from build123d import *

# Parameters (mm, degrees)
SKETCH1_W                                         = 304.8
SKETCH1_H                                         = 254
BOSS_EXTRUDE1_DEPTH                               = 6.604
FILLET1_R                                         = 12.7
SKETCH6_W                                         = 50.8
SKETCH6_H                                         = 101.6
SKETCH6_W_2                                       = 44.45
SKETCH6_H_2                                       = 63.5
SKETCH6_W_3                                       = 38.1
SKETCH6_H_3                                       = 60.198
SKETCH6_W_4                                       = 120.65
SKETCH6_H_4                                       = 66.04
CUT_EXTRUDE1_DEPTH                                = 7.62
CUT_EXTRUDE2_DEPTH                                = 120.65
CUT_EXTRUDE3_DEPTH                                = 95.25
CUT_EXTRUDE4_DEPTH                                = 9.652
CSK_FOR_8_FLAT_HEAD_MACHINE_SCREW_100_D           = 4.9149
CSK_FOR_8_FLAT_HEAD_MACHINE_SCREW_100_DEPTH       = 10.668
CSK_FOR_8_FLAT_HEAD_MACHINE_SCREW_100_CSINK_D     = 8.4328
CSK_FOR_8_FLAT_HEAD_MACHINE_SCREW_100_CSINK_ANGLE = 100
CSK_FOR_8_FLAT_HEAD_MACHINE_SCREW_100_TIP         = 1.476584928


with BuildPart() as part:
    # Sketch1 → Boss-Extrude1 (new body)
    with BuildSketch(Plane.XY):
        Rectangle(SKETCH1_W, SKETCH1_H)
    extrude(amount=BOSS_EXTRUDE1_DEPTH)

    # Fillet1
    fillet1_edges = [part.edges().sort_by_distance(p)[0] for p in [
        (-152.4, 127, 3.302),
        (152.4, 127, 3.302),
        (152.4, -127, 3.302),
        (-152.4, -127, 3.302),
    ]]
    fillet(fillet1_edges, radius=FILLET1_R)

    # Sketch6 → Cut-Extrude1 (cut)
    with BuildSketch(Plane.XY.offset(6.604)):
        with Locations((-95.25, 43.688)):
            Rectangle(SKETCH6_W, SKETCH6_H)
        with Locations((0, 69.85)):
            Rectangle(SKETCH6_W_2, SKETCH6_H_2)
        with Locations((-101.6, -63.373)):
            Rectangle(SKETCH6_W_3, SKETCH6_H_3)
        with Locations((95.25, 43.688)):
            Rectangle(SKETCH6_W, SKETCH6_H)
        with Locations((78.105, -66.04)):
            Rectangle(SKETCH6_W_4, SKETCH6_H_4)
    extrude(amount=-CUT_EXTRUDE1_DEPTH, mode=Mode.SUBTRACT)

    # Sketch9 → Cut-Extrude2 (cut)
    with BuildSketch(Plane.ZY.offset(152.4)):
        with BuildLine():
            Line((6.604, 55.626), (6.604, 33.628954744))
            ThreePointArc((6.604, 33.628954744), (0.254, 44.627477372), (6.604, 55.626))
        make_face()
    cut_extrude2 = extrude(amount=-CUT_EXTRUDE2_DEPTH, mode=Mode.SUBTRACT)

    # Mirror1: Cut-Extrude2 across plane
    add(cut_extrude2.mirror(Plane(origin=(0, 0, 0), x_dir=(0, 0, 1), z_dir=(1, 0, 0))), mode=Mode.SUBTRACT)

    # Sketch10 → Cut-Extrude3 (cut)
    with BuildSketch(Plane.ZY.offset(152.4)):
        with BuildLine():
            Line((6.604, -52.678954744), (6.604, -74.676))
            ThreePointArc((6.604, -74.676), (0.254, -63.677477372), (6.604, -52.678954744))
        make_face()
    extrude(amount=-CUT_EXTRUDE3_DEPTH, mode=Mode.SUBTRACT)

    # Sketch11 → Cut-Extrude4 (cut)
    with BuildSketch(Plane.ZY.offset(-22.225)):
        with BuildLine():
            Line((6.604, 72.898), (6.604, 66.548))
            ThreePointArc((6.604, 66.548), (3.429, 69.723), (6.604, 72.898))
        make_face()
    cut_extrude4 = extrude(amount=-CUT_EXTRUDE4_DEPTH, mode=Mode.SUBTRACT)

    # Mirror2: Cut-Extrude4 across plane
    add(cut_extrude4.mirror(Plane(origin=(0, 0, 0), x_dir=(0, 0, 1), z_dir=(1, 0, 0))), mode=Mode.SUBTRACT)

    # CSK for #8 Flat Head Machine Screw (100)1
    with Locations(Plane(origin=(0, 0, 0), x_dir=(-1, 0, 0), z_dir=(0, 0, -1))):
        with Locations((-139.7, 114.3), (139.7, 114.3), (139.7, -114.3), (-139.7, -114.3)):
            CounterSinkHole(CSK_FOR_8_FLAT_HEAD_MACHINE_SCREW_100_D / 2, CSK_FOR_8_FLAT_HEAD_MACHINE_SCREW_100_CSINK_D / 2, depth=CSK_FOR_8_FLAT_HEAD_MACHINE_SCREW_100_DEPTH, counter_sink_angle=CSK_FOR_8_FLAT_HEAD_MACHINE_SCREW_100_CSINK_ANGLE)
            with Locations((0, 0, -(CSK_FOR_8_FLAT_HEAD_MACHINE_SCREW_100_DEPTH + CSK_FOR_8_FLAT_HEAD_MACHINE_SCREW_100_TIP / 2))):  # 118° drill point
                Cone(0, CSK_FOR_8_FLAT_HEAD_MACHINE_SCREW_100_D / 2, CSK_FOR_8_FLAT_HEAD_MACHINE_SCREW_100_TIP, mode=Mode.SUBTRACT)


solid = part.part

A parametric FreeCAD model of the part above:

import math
import FreeCAD as App
import Part
import Sketcher
Q = App.Units.Quantity


def edges_at(feature, points):
    """Names of the edges that pass closest to the given points."""
    edges = feature.Shape.Edges
    near = lambda p: min(range(len(edges)), key=lambda i: edges[i].distToShape(Part.Vertex(*p))[0])
    return sorted({f"Edge{near(p) + 1}" for p in points})

doc = App.newDocument("Part")
body = doc.addObject("PartDesign::Body", "Body")

sketch1 = body.newObject("Sketcher::SketchObject", "Sketch")
sketch1.AttachmentSupport = (doc.getObject("XY_Plane"), [""])
sketch1.MapMode = "FlatFace"
sketch1.addGeometry(Part.LineSegment(App.Vector(-152.4, 127, 0), App.Vector(-152.4, -127, 0)), False)
sketch1.addGeometry(Part.LineSegment(App.Vector(-152.4, -127, 0), App.Vector(152.4, -127, 0)), False)
sketch1.addGeometry(Part.LineSegment(App.Vector(152.4, -127, 0), App.Vector(152.4, 127, 0)), False)
sketch1.addGeometry(Part.LineSegment(App.Vector(152.4, 127, 0), App.Vector(-152.4, 127, 0)), False)
sketch1.addConstraint(Sketcher.Constraint("Coincident", 0, 2, 1, 1))
sketch1.addConstraint(Sketcher.Constraint("Coincident", 1, 2, 2, 1))
sketch1.addConstraint(Sketcher.Constraint("Coincident", 2, 2, 3, 1))
sketch1.addConstraint(Sketcher.Constraint("Coincident", 3, 2, 0, 1))
sketch1.addConstraint(Sketcher.Constraint("Vertical", 0))
sketch1.addConstraint(Sketcher.Constraint("Horizontal", 1))
sketch1.addConstraint(Sketcher.Constraint("Vertical", 2))
sketch1.addConstraint(Sketcher.Constraint("Horizontal", 3))
sketch1.addConstraint(Sketcher.Constraint("Symmetric", 0, 2, 2, 2, -1, 1))
sketch1.addConstraint(Sketcher.Constraint("DistanceX", 1, 1, 1, 2, Q("12 in")))
sketch1.addConstraint(Sketcher.Constraint("DistanceY", 0, 2, 0, 1, Q("10 in")))
pad1 = body.newObject("PartDesign::Pad", "Pad")
pad1.Profile = sketch1
pad1.Length = Q("0.26 in")
doc.recompute()

fillet = body.newObject("PartDesign::Fillet", "Fillet")
fillet.Base = (pad1, edges_at(pad1, [
    (-152.4, 127, 3.302),
    (152.4, 127, 3.302),
    (152.4, -127, 3.302),
    (-152.4, -127, 3.302),
]))
fillet.Radius = Q("0.5 in")

sketch2 = body.newObject("Sketcher::SketchObject", "Sketch001")
sketch2.AttachmentSupport = (doc.getObject("XY_Plane"), [""])
sketch2.MapMode = "FlatFace"
sketch2.AttachmentOffset = App.Placement(App.Vector(0, 0, 0.26 * 25.4), App.Rotation())
sketch2.addGeometry(Part.LineSegment(App.Vector(-120.65, 94.488, 0), App.Vector(-120.65, -7.112, 0)), False)
sketch2.addGeometry(Part.LineSegment(App.Vector(-120.65, -7.112, 0), App.Vector(-69.85, -7.112, 0)), False)
sketch2.addGeometry(Part.LineSegment(App.Vector(-69.85, -7.112, 0), App.Vector(-69.85, 94.488, 0)), False)
sketch2.addGeometry(Part.LineSegment(App.Vector(-69.85, 94.488, 0), App.Vector(-120.65, 94.488, 0)), False)
sketch2.addGeometry(Part.LineSegment(App.Vector(-22.225, 101.6, 0), App.Vector(-22.225, 38.1, 0)), False)
sketch2.addGeometry(Part.LineSegment(App.Vector(-22.225, 38.1, 0), App.Vector(22.225, 38.1, 0)), False)
sketch2.addGeometry(Part.LineSegment(App.Vector(22.225, 38.1, 0), App.Vector(22.225, 101.6, 0)), False)
sketch2.addGeometry(Part.LineSegment(App.Vector(22.225, 101.6, 0), App.Vector(-22.225, 101.6, 0)), False)
sketch2.addGeometry(Part.LineSegment(App.Vector(-120.65, -33.274, 0), App.Vector(-120.65, -93.472, 0)), False)
sketch2.addGeometry(Part.LineSegment(App.Vector(-120.65, -93.472, 0), App.Vector(-82.55, -93.472, 0)), False)
sketch2.addGeometry(Part.LineSegment(App.Vector(-82.55, -93.472, 0), App.Vector(-82.55, -33.274, 0)), False)
sketch2.addGeometry(Part.LineSegment(App.Vector(-82.55, -33.274, 0), App.Vector(-120.65, -33.274, 0)), False)
sketch2.addGeometry(Part.LineSegment(App.Vector(69.85, 94.488, 0), App.Vector(69.85, -7.112, 0)), False)
sketch2.addGeometry(Part.LineSegment(App.Vector(69.85, -7.112, 0), App.Vector(120.65, -7.112, 0)), False)
sketch2.addGeometry(Part.LineSegment(App.Vector(120.65, -7.112, 0), App.Vector(120.65, 94.488, 0)), False)
sketch2.addGeometry(Part.LineSegment(App.Vector(120.65, 94.488, 0), App.Vector(69.85, 94.488, 0)), False)
sketch2.addGeometry(Part.LineSegment(App.Vector(17.78, -33.02, 0), App.Vector(17.78, -99.06, 0)), False)
sketch2.addGeometry(Part.LineSegment(App.Vector(17.78, -99.06, 0), App.Vector(138.43, -99.06, 0)), False)
sketch2.addGeometry(Part.LineSegment(App.Vector(138.43, -99.06, 0), App.Vector(138.43, -33.02, 0)), False)
sketch2.addGeometry(Part.LineSegment(App.Vector(138.43, -33.02, 0), App.Vector(17.78, -33.02, 0)), False)
sketch2.addConstraint(Sketcher.Constraint("Coincident", 0, 2, 1, 1))
sketch2.addConstraint(Sketcher.Constraint("Coincident", 1, 2, 2, 1))
sketch2.addConstraint(Sketcher.Constraint("Coincident", 2, 2, 3, 1))
sketch2.addConstraint(Sketcher.Constraint("Coincident", 3, 2, 0, 1))
sketch2.addConstraint(Sketcher.Constraint("Coincident", 4, 2, 5, 1))
sketch2.addConstraint(Sketcher.Constraint("Coincident", 5, 2, 6, 1))
sketch2.addConstraint(Sketcher.Constraint("Coincident", 6, 2, 7, 1))
sketch2.addConstraint(Sketcher.Constraint("Coincident", 7, 2, 4, 1))
sketch2.addConstraint(Sketcher.Constraint("Coincident", 8, 2, 9, 1))
sketch2.addConstraint(Sketcher.Constraint("Coincident", 9, 2, 10, 1))
sketch2.addConstraint(Sketcher.Constraint("Coincident", 10, 2, 11, 1))
sketch2.addConstraint(Sketcher.Constraint("Coincident", 11, 2, 8, 1))
sketch2.addConstraint(Sketcher.Constraint("Coincident", 12, 2, 13, 1))
sketch2.addConstraint(Sketcher.Constraint("Coincident", 13, 2, 14, 1))
sketch2.addConstraint(Sketcher.Constraint("Coincident", 14, 2, 15, 1))
sketch2.addConstraint(Sketcher.Constraint("Coincident", 15, 2, 12, 1))
sketch2.addConstraint(Sketcher.Constraint("Coincident", 16, 2, 17, 1))
sketch2.addConstraint(Sketcher.Constraint("Coincident", 17, 2, 18, 1))
sketch2.addConstraint(Sketcher.Constraint("Coincident", 18, 2, 19, 1))
sketch2.addConstraint(Sketcher.Constraint("Coincident", 19, 2, 16, 1))
sketch2.addConstraint(Sketcher.Constraint("Vertical", 0))
sketch2.addConstraint(Sketcher.Constraint("Horizontal", 1))
sketch2.addConstraint(Sketcher.Constraint("Vertical", 2))
sketch2.addConstraint(Sketcher.Constraint("Horizontal", 3))
sketch2.addConstraint(Sketcher.Constraint("Vertical", 4))
sketch2.addConstraint(Sketcher.Constraint("Horizontal", 5))
sketch2.addConstraint(Sketcher.Constraint("Vertical", 6))
sketch2.addConstraint(Sketcher.Constraint("Horizontal", 7))
sketch2.addConstraint(Sketcher.Constraint("Vertical", 8))
sketch2.addConstraint(Sketcher.Constraint("Horizontal", 9))
sketch2.addConstraint(Sketcher.Constraint("Vertical", 10))
sketch2.addConstraint(Sketcher.Constraint("Horizontal", 11))
sketch2.addConstraint(Sketcher.Constraint("Vertical", 12))
sketch2.addConstraint(Sketcher.Constraint("Horizontal", 13))
sketch2.addConstraint(Sketcher.Constraint("Vertical", 14))
sketch2.addConstraint(Sketcher.Constraint("Horizontal", 15))
sketch2.addConstraint(Sketcher.Constraint("Vertical", 16))
sketch2.addConstraint(Sketcher.Constraint("Horizontal", 17))
sketch2.addConstraint(Sketcher.Constraint("Vertical", 18))
sketch2.addConstraint(Sketcher.Constraint("Horizontal", 19))
sketch2.addConstraint(Sketcher.Constraint("Symmetric", 1, 2, 12, 2, -2))
sketch2.addConstraint(Sketcher.Constraint("Symmetric", 3, 2, 14, 2, -2))
sketch2.addConstraint(Sketcher.Constraint("Vertical", 3, 2, 8, 2))
sketch2.addConstraint(Sketcher.Constraint("DistanceX", 1, 1, 1, 2, Q("2 in")))
sketch2.addConstraint(Sketcher.Constraint("DistanceY", 0, 2, 0, 1, Q("4 in")))
sketch2.addConstraint(Sketcher.Constraint("DistanceX", 9, 1, 9, 2, Q("1.5 in")))
sketch2.addConstraint(Sketcher.Constraint("DistanceY", 4, 2, 4, 1, Q("2.5 in")))
sketch2.addConstraint(Sketcher.Constraint("DistanceY", 16, 2, 16, 1, Q("2.6 in")))
sketch2.addConstraint(Sketcher.Constraint("DistanceY", -1, 1, 6, 2, Q("4 in")))
sketch2.addConstraint(Sketcher.Constraint("DistanceX", 5, 1, 5, 2, Q("1.75 in")))
sketch2.addConstraint(Sketcher.Constraint("DistanceX", 17, 1, 17, 2, Q("4.75 in")))
sketch2.addConstraint(Sketcher.Constraint("DistanceY", 8, 2, 8, 1, Q("2.37 in")))
sketch2.addConstraint(Sketcher.Constraint("DistanceX", -1, 1, 16, 2, Q("0.7 in")))
sketch2.addConstraint(Sketcher.Constraint("DistanceY", 16, 2, -1, 1, Q("3.9 in")))
sketch2.addConstraint(Sketcher.Constraint("DistanceY", 8, 2, 0, 2, Q("3.4 in")))
sketch2.addConstraint(Sketcher.Constraint("DistanceX", 1, 2, 12, 2, Q("5.5 in")))
sketch2.addConstraint(Sketcher.Constraint("DistanceY", 0, 2, -1, 1, Q("0.28 in")))
sketch2.addConstraint(Sketcher.Constraint("DistanceX", 4, 2, -1, 1, Q("0.875 in")))
pocket1 = body.newObject("PartDesign::Pocket", "Pocket")
pocket1.Profile = sketch2
pocket1.Length = Q("0.3 in")

sketch3 = body.newObject("Sketcher::SketchObject", "Sketch002")
sketch3.AttachmentSupport = (doc.getObject("YZ_Plane"), [""])
sketch3.MapMode = "FlatFace"
sketch3.AttachmentOffset = App.Placement(App.Vector(0, 0, -6 * 25.4), App.Rotation())
sketch3.addGeometry(Part.LineSegment(App.Vector(33.628955, 6.604, 0), App.Vector(55.626, 6.604, 0)), False)
sketch3.addGeometry(Part.ArcOfCircle(Part.Circle(App.Vector(44.627477, 12.954, 0), App.Vector(0, 0, 1), 12.7), math.radians(-150), math.radians(-30)), False)
sketch3.addConstraint(Sketcher.Constraint("Coincident", 0, 1, 1, 1))
sketch3.addConstraint(Sketcher.Constraint("Coincident", 1, 2, 0, 2))
sketch3.addConstraint(Sketcher.Constraint("Horizontal", 0))
sketch3.addConstraint(Sketcher.Constraint("Radius", 1, Q("0.5 in")))
sketch3.addConstraint(Sketcher.Constraint("DistanceY", -1, 1, 1, 3, Q("0.51 in")))
sketch3.addConstraint(Sketcher.Constraint("DistanceY", -1, 1, 0, 1, Q("0.26 in")))
sketch3.addConstraint(Sketcher.Constraint("DistanceX", -1, 1, 1, 2, Q("2.19 in")))
pocket2 = body.newObject("PartDesign::Pocket", "Pocket001")
pocket2.Profile = sketch3
pocket2.Length = Q("4.75 in")
pocket2.Reversed = True
doc.recompute()

mirrored = body.newObject("PartDesign::Mirrored", "Mirrored")
mirrored.Originals = [pocket2]
mirrored.MirrorPlane = (doc.getObject("YZ_Plane"), [""])
body.Tip = mirrored

sketch4 = body.newObject("Sketcher::SketchObject", "Sketch003")
sketch4.AttachmentSupport = (doc.getObject("YZ_Plane"), [""])
sketch4.MapMode = "FlatFace"
sketch4.AttachmentOffset = App.Placement(App.Vector(0, 0, -6 * 25.4), App.Rotation())
sketch4.addGeometry(Part.LineSegment(App.Vector(-74.676, 6.604, 0), App.Vector(-52.678955, 6.604, 0)), False)
sketch4.addGeometry(Part.ArcOfCircle(Part.Circle(App.Vector(-63.677477, 12.954, 0), App.Vector(0, 0, 1), 12.7), math.radians(-150), math.radians(-30)), False)
sketch4.addConstraint(Sketcher.Constraint("Coincident", 0, 1, 1, 1))
sketch4.addConstraint(Sketcher.Constraint("Coincident", 1, 2, 0, 2))
sketch4.addConstraint(Sketcher.Constraint("Horizontal", 0))
sketch4.addConstraint(Sketcher.Constraint("Radius", 1, Q("0.5 in")))
sketch4.addConstraint(Sketcher.Constraint("DistanceY", -1, 1, 1, 3, Q("0.51 in")))
sketch4.addConstraint(Sketcher.Constraint("DistanceX", 0, 1, -1, 1, Q("2.94 in")))
sketch4.addConstraint(Sketcher.Constraint("DistanceY", -1, 1, 0, 1, Q("0.26 in")))
pocket3 = body.newObject("PartDesign::Pocket", "Pocket002")
pocket3.Profile = sketch4
pocket3.Length = Q("3.75 in")
pocket3.Reversed = True

sketch5 = body.newObject("Sketcher::SketchObject", "Sketch004")
sketch5.AttachmentSupport = (doc.getObject("YZ_Plane"), [""])
sketch5.MapMode = "FlatFace"
sketch5.AttachmentOffset = App.Placement(App.Vector(0, 0, 0.875 * 25.4), App.Rotation())
sketch5.addGeometry(Part.LineSegment(App.Vector(66.548, 6.604, 0), App.Vector(72.898, 6.604, 0)), False)
sketch5.addGeometry(Part.ArcOfCircle(Part.Circle(App.Vector(69.723, 6.604, 0), App.Vector(0, 0, 1), 3.175), math.radians(180), math.radians(360)), False)
sketch5.addConstraint(Sketcher.Constraint("Coincident", 0, 1, 1, 1))
sketch5.addConstraint(Sketcher.Constraint("Coincident", 1, 2, 0, 2))
sketch5.addConstraint(Sketcher.Constraint("Horizontal", 0))
sketch5.addConstraint(Sketcher.Constraint("Horizontal", 1, 3, 0, 1))
sketch5.addConstraint(Sketcher.Constraint("Radius", 1, Q("0.125 in")))
sketch5.addConstraint(Sketcher.Constraint("DistanceY", -1, 1, 1, 3, Q("0.26 in")))
sketch5.addConstraint(Sketcher.Constraint("DistanceX", -1, 1, 0, 1, Q("2.62 in")))
pocket4 = body.newObject("PartDesign::Pocket", "Pocket003")
pocket4.Profile = sketch5
pocket4.Length = Q("0.38 in")
pocket4.Reversed = True
doc.recompute()

mirrored2 = body.newObject("PartDesign::Mirrored", "Mirrored001")
mirrored2.Originals = [pocket4]
mirrored2.MirrorPlane = (doc.getObject("YZ_Plane"), [""])
body.Tip = mirrored2

sketch6 = body.newObject("Sketcher::SketchObject", "Sketch005")
sketch6.AttachmentSupport = (doc.getObject("XY_Plane"), [""])
sketch6.MapMode = "FlatFace"
sketch6.addGeometry(Part.Circle(App.Vector(139.7, 114.3, 0), App.Vector(0, 0, 1), 2.45745), False)
sketch6.addGeometry(Part.Circle(App.Vector(-139.7, 114.3, 0), App.Vector(0, 0, 1), 2.45745), False)
sketch6.addGeometry(Part.Circle(App.Vector(-139.7, -114.3, 0), App.Vector(0, 0, 1), 2.45745), False)
sketch6.addGeometry(Part.Circle(App.Vector(139.7, -114.3, 0), App.Vector(0, 0, 1), 2.45745), False)
sketch6.addConstraint(Sketcher.Constraint("Equal", 0, 1))
sketch6.addConstraint(Sketcher.Constraint("Equal", 1, 2))
sketch6.addConstraint(Sketcher.Constraint("Equal", 2, 3))
sketch6.addConstraint(Sketcher.Constraint("Symmetric", 0, 3, 2, 3, -1, 1))
sketch6.addConstraint(Sketcher.Constraint("Symmetric", 1, 3, 3, 3, -1, 1))
sketch6.addConstraint(Sketcher.Constraint("Symmetric", 0, 3, 1, 3, -2))
sketch6.addConstraint(Sketcher.Constraint("DistanceX", 1, 3, 0, 3, Q("11 in")))
sketch6.addConstraint(Sketcher.Constraint("DistanceY", 2, 3, 1, 3, Q("9 in")))
sketch6.addConstraint(Sketcher.Constraint("Diameter", 0, Q("0.1935 in")))
doc.recompute()
hole = body.newObject("PartDesign::Hole", "Hole")
hole.Profile = sketch6
hole.ThreadType = "None"
hole.Diameter = Q("0.1935 in")
hole.DepthType = "Dimension"
hole.Depth = Q("0.42 in")
hole.DrillPoint = "Angled"
hole.DrillPointAngle = 118
hole.HoleCutType = "Countersink"
hole.HoleCutDiameter = Q("0.332 in")
hole.HoleCutCountersinkAngle = 100
hole.Reversed = True

doc.recompute()
